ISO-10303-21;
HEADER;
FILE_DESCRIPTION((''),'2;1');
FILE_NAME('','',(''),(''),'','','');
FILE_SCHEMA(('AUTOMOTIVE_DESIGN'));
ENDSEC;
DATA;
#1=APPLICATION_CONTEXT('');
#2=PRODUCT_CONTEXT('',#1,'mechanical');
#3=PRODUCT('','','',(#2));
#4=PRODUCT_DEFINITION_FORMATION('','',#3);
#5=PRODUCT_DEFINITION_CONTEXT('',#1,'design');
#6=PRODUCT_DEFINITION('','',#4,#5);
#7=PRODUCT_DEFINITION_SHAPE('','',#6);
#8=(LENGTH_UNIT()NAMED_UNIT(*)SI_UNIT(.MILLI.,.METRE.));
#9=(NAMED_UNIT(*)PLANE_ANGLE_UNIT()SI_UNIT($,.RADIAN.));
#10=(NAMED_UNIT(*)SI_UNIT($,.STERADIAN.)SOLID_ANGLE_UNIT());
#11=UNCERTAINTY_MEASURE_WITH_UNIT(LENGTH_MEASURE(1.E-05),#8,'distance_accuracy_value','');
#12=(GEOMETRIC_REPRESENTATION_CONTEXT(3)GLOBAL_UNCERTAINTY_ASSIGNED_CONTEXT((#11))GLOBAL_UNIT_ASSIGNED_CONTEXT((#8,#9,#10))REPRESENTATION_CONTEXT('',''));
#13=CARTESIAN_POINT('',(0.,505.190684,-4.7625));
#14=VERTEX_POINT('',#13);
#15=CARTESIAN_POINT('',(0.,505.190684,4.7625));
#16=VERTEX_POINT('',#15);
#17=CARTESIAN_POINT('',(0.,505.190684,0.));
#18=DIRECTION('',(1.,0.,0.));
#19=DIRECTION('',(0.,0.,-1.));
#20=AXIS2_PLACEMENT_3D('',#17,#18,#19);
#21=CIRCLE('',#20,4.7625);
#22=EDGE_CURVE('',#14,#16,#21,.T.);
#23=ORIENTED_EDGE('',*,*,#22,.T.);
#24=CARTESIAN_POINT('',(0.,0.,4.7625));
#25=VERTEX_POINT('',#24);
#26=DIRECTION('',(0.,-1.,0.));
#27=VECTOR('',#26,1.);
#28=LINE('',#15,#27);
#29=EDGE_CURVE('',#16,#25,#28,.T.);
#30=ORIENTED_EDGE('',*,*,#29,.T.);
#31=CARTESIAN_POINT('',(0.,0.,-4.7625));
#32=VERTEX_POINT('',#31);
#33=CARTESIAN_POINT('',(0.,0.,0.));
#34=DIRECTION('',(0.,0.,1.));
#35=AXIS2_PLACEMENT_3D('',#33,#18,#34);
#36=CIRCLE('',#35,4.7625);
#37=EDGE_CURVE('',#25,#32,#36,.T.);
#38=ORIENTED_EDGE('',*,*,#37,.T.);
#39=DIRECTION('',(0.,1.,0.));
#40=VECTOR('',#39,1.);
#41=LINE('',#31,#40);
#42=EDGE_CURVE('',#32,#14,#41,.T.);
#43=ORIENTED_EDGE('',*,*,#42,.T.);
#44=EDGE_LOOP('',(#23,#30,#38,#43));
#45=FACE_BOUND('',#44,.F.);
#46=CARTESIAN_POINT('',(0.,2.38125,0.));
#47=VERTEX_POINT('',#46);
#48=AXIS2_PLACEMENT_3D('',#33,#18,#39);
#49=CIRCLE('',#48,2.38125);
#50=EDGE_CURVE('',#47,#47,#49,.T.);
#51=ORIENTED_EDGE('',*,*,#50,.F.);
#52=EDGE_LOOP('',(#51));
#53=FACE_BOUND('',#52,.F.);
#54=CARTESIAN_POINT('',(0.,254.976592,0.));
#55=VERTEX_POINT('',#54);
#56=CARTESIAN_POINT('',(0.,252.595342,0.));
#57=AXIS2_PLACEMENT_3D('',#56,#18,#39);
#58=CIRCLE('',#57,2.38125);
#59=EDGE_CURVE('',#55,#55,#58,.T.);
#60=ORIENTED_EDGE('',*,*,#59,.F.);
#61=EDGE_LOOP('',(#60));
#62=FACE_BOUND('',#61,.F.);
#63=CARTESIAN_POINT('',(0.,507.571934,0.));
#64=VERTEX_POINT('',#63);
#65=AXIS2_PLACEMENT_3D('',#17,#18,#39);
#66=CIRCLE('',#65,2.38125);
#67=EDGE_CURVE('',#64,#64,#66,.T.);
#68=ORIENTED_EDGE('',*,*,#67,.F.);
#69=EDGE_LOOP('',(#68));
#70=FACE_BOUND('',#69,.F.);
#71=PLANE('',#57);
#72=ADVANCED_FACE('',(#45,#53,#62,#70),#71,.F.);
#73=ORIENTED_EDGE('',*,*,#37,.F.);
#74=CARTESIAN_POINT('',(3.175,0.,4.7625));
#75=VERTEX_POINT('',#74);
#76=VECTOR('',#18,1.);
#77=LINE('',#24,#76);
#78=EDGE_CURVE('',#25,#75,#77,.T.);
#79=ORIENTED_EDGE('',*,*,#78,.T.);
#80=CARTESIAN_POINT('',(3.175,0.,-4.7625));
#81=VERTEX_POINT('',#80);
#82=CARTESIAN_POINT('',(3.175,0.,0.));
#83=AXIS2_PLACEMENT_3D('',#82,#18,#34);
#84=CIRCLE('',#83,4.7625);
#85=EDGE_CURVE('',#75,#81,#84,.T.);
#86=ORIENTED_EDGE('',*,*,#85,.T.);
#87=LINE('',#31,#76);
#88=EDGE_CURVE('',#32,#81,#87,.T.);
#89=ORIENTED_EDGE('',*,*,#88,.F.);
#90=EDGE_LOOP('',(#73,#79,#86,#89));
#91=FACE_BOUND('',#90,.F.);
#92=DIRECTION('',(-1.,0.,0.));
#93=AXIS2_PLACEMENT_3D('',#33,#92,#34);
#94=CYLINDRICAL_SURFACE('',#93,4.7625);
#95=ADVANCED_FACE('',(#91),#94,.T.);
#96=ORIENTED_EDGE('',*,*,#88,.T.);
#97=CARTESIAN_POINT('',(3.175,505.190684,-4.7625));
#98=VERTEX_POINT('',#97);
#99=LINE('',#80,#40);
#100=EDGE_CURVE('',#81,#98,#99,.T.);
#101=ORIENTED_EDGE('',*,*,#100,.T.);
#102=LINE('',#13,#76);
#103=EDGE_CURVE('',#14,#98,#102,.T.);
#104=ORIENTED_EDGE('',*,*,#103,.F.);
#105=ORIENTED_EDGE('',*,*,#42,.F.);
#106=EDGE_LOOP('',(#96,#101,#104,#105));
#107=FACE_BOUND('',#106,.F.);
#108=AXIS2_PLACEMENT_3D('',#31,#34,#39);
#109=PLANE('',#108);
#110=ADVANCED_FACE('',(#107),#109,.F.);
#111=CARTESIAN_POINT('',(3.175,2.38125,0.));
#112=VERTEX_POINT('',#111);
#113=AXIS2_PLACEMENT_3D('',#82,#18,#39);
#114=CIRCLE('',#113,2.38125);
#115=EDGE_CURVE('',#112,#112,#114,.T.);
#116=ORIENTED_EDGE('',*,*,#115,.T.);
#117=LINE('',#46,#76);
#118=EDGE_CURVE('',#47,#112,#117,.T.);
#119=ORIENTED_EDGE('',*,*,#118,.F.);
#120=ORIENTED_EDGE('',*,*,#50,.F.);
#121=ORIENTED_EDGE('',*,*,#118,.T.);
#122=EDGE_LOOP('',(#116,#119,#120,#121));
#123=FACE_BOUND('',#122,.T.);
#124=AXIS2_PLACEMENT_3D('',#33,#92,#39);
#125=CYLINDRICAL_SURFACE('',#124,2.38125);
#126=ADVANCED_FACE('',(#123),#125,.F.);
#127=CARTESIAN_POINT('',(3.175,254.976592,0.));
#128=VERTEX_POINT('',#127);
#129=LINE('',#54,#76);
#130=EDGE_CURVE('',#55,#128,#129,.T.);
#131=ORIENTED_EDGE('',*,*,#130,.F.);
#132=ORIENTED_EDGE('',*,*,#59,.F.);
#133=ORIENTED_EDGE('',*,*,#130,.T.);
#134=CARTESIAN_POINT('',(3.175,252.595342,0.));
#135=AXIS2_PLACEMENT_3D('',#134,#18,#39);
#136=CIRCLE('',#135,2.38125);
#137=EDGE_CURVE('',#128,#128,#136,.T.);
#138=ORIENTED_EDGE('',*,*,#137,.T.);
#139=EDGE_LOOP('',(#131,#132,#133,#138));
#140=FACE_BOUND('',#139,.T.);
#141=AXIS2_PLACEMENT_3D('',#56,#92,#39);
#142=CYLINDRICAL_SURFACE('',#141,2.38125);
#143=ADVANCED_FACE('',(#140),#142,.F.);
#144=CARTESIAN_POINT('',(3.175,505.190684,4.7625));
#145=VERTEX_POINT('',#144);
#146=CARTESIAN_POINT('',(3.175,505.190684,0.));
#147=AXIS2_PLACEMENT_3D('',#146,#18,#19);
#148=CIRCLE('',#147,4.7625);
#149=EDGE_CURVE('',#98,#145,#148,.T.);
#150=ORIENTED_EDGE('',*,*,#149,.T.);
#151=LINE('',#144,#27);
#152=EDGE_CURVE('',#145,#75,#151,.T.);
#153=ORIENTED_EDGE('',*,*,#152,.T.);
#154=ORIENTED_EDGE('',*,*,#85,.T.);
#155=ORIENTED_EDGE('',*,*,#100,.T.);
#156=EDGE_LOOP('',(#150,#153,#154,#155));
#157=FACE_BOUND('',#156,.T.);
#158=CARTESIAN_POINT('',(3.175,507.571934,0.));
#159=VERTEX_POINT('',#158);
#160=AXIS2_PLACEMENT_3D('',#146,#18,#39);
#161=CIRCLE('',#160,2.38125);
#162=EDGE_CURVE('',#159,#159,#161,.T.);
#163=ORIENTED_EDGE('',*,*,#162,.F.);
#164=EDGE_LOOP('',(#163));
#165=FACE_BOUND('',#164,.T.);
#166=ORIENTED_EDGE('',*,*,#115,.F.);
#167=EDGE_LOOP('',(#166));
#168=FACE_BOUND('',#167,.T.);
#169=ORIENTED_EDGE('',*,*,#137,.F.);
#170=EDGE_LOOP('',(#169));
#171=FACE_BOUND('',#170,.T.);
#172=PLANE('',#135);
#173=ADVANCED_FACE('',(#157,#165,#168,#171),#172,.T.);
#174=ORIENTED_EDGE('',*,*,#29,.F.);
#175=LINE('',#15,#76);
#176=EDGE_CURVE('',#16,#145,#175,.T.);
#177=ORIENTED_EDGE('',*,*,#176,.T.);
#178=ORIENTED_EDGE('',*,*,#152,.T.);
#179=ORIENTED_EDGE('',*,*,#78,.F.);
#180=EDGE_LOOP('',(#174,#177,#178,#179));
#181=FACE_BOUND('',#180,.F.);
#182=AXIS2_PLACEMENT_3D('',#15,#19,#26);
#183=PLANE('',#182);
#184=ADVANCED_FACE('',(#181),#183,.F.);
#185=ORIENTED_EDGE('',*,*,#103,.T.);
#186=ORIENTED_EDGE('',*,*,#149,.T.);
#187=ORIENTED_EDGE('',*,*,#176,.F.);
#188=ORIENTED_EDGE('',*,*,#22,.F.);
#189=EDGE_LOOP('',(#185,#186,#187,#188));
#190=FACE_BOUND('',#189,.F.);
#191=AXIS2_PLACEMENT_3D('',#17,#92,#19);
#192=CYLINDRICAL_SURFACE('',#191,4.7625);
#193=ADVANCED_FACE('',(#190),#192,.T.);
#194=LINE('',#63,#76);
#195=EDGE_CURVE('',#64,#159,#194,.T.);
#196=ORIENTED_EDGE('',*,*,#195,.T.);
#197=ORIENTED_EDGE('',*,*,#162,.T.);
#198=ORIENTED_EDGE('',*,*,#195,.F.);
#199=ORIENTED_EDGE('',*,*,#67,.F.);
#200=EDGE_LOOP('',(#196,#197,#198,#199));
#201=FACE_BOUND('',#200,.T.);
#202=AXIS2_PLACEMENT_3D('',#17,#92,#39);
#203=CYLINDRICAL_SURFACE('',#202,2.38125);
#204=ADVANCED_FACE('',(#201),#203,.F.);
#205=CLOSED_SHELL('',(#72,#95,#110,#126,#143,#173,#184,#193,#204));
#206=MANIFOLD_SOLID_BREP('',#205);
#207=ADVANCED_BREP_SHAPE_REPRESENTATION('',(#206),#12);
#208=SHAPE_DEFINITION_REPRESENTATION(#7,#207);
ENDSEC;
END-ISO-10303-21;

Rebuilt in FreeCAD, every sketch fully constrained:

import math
import FreeCAD as App
import Part
import Sketcher
Q = App.Units.Quantity

doc = App.newDocument("Part")
body = doc.addObject("PartDesign::Body", "Body")

sketch1 = body.newObject("Sketcher::SketchObject", "Sketch")
sketch1.AttachmentSupport = (doc.getObject("YZ_Plane"), [""])
sketch1.MapMode = "FlatFace"
sketch1.addGeometry([
    Part.LineSegment(App.Vector(505.2, 4.8, 0), App.Vector(0, 4.8, 0)),
    Part.ArcOfCircle(Part.Circle(App.Vector(0, 0, 0), App.Vector(0, 0, 1), 4.8), math.radians(90), math.radians(270)),
    Part.LineSegment(App.Vector(0, -4.8, 0), App.Vector(505.2, -4.8, 0)),
    Part.ArcOfCircle(Part.Circle(App.Vector(505.2, 0, 0), App.Vector(0, 0, 1), 4.8), math.radians(-90), math.radians(90)),
    Part.Circle(App.Vector(0, 0, 0), App.Vector(0, 0, 1), 2.4),
    Part.Circle(App.Vector(252.6, 0, 0), App.Vector(0, 0, 1), 2.4),
    Part.Circle(App.Vector(505.2, 0, 0), App.Vector(0, 0, 1), 2.4),
], False)
sketch1.addConstraint([
    Sketcher.Constraint("Tangent", 0, 2, 1, 1),
    Sketcher.Constraint("Tangent", 1, 2, 2, 1),
    Sketcher.Constraint("Tangent", 2, 2, 3, 1),
    Sketcher.Constraint("Tangent", 3, 2, 0, 1),
    Sketcher.Constraint("Horizontal", 0),
    Sketcher.Constraint("Horizontal", 2),
    Sketcher.Constraint("Coincident", 1, 3, -1, 1),
    Sketcher.Constraint("Coincident", 4, 3, -1, 1),
    Sketcher.Constraint("Coincident", 6, 3, 3, 3),
    Sketcher.Constraint("Equal", 4, 5),
    Sketcher.Constraint("Equal", 5, 6),
    Sketcher.Constraint("PointOnObject", 5, 3, -1),
    Sketcher.Constraint("Diameter", 4, Q("0.1875 in")),
    Sketcher.Constraint("Radius", 1, Q("0.1875 in")),
    Sketcher.Constraint("DistanceX", 0, 2, 0, 1, 505.190684),
    Sketcher.Constraint("DistanceX", -1, 1, 5, 3, 252.595342),
])
pad1 = body.newObject("PartDesign::Pad", "Pad")
pad1.Profile = sketch1
pad1.Length = Q("0.125 in")

doc.recompute()
